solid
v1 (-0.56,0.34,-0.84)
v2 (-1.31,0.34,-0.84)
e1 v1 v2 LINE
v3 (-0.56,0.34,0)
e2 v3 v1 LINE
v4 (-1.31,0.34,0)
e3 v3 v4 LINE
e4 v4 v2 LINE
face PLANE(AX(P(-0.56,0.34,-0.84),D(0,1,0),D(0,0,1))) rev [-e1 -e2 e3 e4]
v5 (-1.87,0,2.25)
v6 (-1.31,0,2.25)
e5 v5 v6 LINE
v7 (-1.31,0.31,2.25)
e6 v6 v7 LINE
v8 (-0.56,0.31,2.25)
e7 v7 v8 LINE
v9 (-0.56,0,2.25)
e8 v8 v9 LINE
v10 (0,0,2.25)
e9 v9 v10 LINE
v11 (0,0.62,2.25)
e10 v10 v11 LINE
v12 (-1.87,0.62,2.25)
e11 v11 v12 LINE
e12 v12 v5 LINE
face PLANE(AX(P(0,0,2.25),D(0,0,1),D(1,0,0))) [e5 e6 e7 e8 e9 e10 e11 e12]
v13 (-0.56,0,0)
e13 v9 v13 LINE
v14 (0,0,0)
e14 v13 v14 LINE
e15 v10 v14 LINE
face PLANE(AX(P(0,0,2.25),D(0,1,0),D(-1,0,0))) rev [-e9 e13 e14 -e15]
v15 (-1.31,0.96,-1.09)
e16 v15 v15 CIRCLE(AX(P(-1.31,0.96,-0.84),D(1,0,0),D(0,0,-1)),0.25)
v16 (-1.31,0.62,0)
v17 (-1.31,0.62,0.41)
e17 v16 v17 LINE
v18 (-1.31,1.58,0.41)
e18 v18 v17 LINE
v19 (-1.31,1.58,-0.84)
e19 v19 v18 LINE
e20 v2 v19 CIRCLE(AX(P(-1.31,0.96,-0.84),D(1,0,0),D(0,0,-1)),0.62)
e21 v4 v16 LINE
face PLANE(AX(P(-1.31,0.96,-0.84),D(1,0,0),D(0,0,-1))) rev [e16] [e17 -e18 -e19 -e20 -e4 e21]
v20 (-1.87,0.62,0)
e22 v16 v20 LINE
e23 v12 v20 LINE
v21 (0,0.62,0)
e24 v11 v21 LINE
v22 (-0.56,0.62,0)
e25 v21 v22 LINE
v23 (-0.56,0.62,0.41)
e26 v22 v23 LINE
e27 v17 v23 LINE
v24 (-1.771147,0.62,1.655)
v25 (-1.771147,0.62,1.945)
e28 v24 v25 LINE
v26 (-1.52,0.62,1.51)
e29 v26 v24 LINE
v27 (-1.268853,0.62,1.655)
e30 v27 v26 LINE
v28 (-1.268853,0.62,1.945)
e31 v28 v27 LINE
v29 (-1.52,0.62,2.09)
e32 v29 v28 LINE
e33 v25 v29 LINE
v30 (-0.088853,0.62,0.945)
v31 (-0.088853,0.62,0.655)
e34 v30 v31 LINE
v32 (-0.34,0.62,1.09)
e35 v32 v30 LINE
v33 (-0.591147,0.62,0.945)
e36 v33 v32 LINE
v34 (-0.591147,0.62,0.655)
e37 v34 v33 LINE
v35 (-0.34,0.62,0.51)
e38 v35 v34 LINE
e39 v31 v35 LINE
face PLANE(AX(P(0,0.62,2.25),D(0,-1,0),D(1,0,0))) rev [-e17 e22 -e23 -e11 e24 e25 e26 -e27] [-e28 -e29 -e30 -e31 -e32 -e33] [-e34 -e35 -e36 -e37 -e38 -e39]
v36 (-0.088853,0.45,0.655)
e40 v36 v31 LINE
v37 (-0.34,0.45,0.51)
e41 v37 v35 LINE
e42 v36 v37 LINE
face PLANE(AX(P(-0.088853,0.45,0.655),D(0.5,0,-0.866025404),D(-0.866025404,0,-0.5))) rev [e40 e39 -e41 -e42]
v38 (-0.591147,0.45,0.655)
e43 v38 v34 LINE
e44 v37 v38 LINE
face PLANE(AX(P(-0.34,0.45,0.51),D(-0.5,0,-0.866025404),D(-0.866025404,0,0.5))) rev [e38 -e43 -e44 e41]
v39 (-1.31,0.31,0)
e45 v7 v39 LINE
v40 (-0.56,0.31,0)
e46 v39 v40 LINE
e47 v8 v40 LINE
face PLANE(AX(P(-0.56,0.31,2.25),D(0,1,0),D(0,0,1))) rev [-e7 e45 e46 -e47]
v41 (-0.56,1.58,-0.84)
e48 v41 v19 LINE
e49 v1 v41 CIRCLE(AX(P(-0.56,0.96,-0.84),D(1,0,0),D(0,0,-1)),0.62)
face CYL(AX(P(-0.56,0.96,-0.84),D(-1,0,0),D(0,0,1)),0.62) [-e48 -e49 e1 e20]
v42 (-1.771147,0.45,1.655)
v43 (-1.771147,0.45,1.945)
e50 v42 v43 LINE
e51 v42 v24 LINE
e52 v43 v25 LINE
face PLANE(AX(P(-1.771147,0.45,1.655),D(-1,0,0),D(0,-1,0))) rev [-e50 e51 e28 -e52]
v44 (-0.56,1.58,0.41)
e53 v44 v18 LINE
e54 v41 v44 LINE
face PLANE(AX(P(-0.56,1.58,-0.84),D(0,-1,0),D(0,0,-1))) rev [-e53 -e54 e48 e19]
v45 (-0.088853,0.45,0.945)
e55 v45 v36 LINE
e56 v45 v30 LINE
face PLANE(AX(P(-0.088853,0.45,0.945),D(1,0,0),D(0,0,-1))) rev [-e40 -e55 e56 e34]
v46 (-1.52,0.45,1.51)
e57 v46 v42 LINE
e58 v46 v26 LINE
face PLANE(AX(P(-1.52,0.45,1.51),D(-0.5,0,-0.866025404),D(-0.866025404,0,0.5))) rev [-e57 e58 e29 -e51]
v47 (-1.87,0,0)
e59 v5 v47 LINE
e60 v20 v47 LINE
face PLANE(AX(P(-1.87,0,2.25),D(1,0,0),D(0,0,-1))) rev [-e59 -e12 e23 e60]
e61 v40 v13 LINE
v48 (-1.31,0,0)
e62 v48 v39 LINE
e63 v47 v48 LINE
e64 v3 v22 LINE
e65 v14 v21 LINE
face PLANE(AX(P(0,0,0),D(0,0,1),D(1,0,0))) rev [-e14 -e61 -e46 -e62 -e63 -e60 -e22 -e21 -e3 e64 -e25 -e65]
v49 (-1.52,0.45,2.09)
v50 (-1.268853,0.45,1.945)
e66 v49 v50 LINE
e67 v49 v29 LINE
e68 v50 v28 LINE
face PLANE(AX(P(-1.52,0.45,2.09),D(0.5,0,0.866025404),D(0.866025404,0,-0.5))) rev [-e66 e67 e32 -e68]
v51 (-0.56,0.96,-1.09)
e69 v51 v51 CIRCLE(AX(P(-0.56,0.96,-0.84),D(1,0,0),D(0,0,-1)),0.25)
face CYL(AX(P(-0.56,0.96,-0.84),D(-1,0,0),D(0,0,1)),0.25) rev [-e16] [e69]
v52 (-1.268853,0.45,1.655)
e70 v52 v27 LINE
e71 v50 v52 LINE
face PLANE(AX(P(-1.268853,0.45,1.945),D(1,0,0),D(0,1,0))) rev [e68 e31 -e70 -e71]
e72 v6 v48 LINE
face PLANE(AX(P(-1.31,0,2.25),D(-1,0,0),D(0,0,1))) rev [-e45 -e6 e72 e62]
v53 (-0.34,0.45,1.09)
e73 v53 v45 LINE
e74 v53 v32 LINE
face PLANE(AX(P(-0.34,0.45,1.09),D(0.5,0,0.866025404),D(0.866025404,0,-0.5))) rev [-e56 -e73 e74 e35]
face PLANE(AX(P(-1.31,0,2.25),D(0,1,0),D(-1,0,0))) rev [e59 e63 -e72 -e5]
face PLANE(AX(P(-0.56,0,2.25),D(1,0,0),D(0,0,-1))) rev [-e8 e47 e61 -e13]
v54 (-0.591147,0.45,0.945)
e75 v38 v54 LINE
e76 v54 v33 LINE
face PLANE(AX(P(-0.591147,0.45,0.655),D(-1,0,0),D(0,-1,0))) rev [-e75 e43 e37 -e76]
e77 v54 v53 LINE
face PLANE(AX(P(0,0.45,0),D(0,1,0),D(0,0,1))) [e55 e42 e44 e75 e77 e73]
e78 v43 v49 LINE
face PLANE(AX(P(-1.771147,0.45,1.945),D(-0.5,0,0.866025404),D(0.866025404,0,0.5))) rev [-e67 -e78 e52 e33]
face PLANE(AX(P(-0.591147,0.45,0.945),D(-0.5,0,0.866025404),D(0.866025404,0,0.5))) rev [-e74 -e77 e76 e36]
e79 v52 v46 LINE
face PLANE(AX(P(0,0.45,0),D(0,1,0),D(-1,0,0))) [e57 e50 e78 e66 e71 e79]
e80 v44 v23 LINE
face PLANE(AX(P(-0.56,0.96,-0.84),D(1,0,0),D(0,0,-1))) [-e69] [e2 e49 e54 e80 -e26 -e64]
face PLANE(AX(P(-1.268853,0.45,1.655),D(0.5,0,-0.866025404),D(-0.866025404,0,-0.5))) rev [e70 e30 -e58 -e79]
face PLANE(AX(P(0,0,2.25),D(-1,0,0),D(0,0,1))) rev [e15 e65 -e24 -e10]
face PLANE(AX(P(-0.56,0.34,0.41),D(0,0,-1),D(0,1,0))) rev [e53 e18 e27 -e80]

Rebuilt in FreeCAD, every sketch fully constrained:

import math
import FreeCAD as App
import Part
import Sketcher
from FreeCAD import Vector
Q = App.Units.Quantity

doc = App.newDocument("Part")
body = doc.addObject("PartDesign::Body", "Body")

# Sketch on XY plane
sketch1 = body.newObject("Sketcher::SketchObject", "Sketch")
sketch1.AttachmentSupport = (doc.getObject("XY_Plane"), [""])
sketch1.MapMode = "FlatFace"
sketch1.addGeometry([
    Part.LineSegment(Vector(-1.87, 0, 0), Vector(-1.31, 0, 0)),  # 0
    Part.LineSegment(Vector(-1.31, 0, 0), Vector(-1.31, 0.31, 0)),  # 1
    Part.LineSegment(Vector(-1.31, 0.31, 0), Vector(-0.56, 0.31, 0)),  # 2
    Part.LineSegment(Vector(-0.56, 0.31, 0), Vector(-0.56, 0, 0)),  # 3
    Part.LineSegment(Vector(-0.56, 0, 0), Vector(0, 0, 0)),  # 4
    Part.LineSegment(Vector(0, 0, 0), Vector(0, 0.62, 0)),  # 5
    Part.LineSegment(Vector(0, 0.62, 0), Vector(-1.87, 0.62, 0)),  # 6
    Part.LineSegment(Vector(-1.87, 0.62, 0), Vector(-1.87, 0, 0)),  # 7
], False)
sketch1.addConstraint([
    Sketcher.Constraint("Coincident", 0, 2, 1, 1),
    Sketcher.Constraint("Coincident", 1, 2, 2, 1),
    Sketcher.Constraint("Coincident", 2, 2, 3, 1),
    Sketcher.Constraint("Coincident", 3, 2, 4, 1),
    Sketcher.Constraint("Coincident", 4, 2, 5, 1),
    Sketcher.Constraint("Coincident", 5, 2, 6, 1),
    Sketcher.Constraint("Coincident", 6, 2, 7, 1),
    Sketcher.Constraint("Coincident", 7, 2, 0, 1),
    Sketcher.Constraint("Horizontal", 0),
    Sketcher.Constraint("Vertical", 1),
    Sketcher.Constraint("Horizontal", 2),
    Sketcher.Constraint("Vertical", 3),
    Sketcher.Constraint("Horizontal", 4),
    Sketcher.Constraint("Vertical", 5),
    Sketcher.Constraint("Horizontal", 6),
    Sketcher.Constraint("Vertical", 7),
    Sketcher.Constraint("Coincident", 4, 2, -1, 1),
    Sketcher.Constraint("PointOnObject", 0, 2, -1),
    Sketcher.Constraint("Equal", 0, 4),
    Sketcher.Constraint("DistanceX", 0, 1, 0, 2, 0.56),
    Sketcher.Constraint("DistanceX", 2, 1, 2, 2, 0.75),
    Sketcher.Constraint("DistanceY", 1, 1, 1, 2, 0.31),
    Sketcher.Constraint("DistanceY", 5, 1, 5, 2, 0.62),
])
pad1 = body.newObject("PartDesign::Pad", "Pad")
pad1.Profile = sketch1
pad1.Length = 2.25

# Sketch on YZ plane
sketch2 = body.newObject("Sketcher::SketchObject", "Sketch001")
sketch2.AttachmentSupport = (doc.getObject("YZ_Plane"), [""])
sketch2.MapMode = "FlatFace"
sketch2.AttachmentOffset = App.Placement(Vector(0, 0, -0.935), App.Rotation())
sketch2.addGeometry([
    Part.LineSegment(Vector(1.58, -0.84, 0), Vector(1.58, 0.41, 0)),  # 0
    Part.LineSegment(Vector(1.58, 0.41, 0), Vector(0.34, 0.41, 0)),  # 1
    Part.LineSegment(Vector(0.34, 0.41, 0), Vector(0.34, -0.84, 0)),  # 2
    Part.ArcOfCircle(Part.Circle(Vector(0.96, -0.84, 0), Vector(0, 0, 1), 0.62), math.radians(180), math.radians(360)),  # 3
    Part.Circle(Vector(0.96, -0.84, 0), Vector(0, 0, 1), 0.25),  # 4
], False)
sketch2.addConstraint([
    Sketcher.Constraint("Coincident", 0, 2, 1, 1),
    Sketcher.Constraint("Coincident", 1, 2, 2, 1),
    Sketcher.Constraint("Tangent", 2, 2, 3, 1),
    Sketcher.Constraint("Tangent", 3, 2, 0, 1),
    Sketcher.Constraint("Vertical", 0),
    Sketcher.Constraint("Horizontal", 1),
    Sketcher.Constraint("Vertical", 2),
    Sketcher.Constraint("Coincident", 4, 3, 3, 3),
    Sketcher.Constraint("Diameter", 4, 0.5),
    Sketcher.Constraint("Radius", 3, 0.62),
    Sketcher.Constraint("DistanceY", 0, 1, 0, 2, 1.25),
    Sketcher.Constraint("DistanceX", -1, 1, 3, 3, 0.96),
    Sketcher.Constraint("DistanceY", 3, 3, -1, 1, 0.84),
])
pad2 = body.newObject("PartDesign::Pad", "Pad001")
pad2.Profile = sketch2
pad2.Length = 0.75
pad2.Midplane = True

# Sketch on XZ plane
sketch3 = body.newObject("Sketcher::SketchObject", "Sketch002")
sketch3.AttachmentSupport = (doc.getObject("XZ_Plane"), [""])
sketch3.MapMode = "FlatFace"
sketch3.AttachmentOffset = App.Placement(Vector(0, 0, -0.62), App.Rotation())
sketch3.addGeometry([
    Part.LineSegment(Vector(-0.09, 0.94, 0), Vector(-0.09, 0.66, 0)),  # 0
    Part.LineSegment(Vector(-0.09, 0.66, 0), Vector(-0.34, 0.51, 0)),  # 1
    Part.LineSegment(Vector(-0.34, 0.51, 0), Vector(-0.59, 0.66, 0)),  # 2
    Part.LineSegment(Vector(-0.59, 0.66, 0), Vector(-0.59, 0.94, 0)),  # 3
    Part.LineSegment(Vector(-0.59, 0.94, 0), Vector(-0.34, 1.09, 0)),  # 4
    Part.LineSegment(Vector(-0.34, 1.09, 0), Vector(-0.09, 0.94, 0)),  # 5
    Part.LineSegment(Vector(-1.27, 1.95, 0), Vector(-1.27, 1.66, 0)),  # 6
    Part.LineSegment(Vector(-1.27, 1.66, 0), Vector(-1.52, 1.51, 0)),  # 7
    Part.LineSegment(Vector(-1.52, 1.51, 0), Vector(-1.77, 1.66, 0)),  # 8
    Part.LineSegment(Vector(-1.77, 1.66, 0), Vector(-1.77, 1.95, 0)),  # 9
    Part.LineSegment(Vector(-1.77, 1.95, 0), Vector(-1.52, 2.09, 0)),  # 10
    Part.LineSegment(Vector(-1.52, 2.09, 0), Vector(-1.27, 1.95, 0)),  # 11
], False)
sketch3.addConstraint([
    Sketcher.Constraint("Coincident", 0, 2, 1, 1),
    Sketcher.Constraint("Coincident", 1, 2, 2, 1),
    Sketcher.Constraint("Coincident", 2, 2, 3, 1),
    Sketcher.Constraint("Coincident", 3, 2, 4, 1),
    Sketcher.Constraint("Coincident", 4, 2, 5, 1),
    Sketcher.Constraint("Coincident", 5, 2, 0, 1),
    Sketcher.Constraint("Coincident", 6, 2, 7, 1),
    Sketcher.Constraint("Coincident", 7, 2, 8, 1),
    Sketcher.Constraint("Coincident", 8, 2, 9, 1),
    Sketcher.Constraint("Coincident", 9, 2, 10, 1),
    Sketcher.Constraint("Coincident", 10, 2, 11, 1),
    Sketcher.Constraint("Coincident", 11, 2, 6, 1),
    Sketcher.Constraint("Vertical", 0),
    Sketcher.Constraint("Vertical", 3),
    Sketcher.Constraint("Vertical", 6),
    Sketcher.Constraint("Vertical", 9),
    Sketcher.Constraint("Parallel", 1, 4),
    Sketcher.Constraint("Parallel", 2, 5),
    Sketcher.Constraint("Parallel", 4, 7),
    Sketcher.Constraint("Parallel", 5, 8),
    Sketcher.Constraint("Parallel", 7, 10),
    Sketcher.Constraint("Parallel", 8, 11),
    Sketcher.Constraint("Horizontal", 0, 2, 2, 2),
    Sketcher.Constraint("Horizontal", 3, 2, 5, 2),
    Sketcher.Constraint("Horizontal", 6, 2, 8, 2),
    Sketcher.Constraint("Horizontal", 9, 2, 11, 2),
    Sketcher.Constraint("Vertical", 1, 2, 4, 2),
    Sketcher.Constraint("Equal", 3, 6),
    Sketcher.Constraint("Equal", 5, 7),
    Sketcher.Constraint("Angle", 1, Q("-150 deg")),
    Sketcher.Constraint("DistanceY", 2, 2, 6, 2, 1.0),
    Sketcher.Constraint("DistanceY", 0, 2, 0, 1, 0.29),
    Sketcher.Constraint("Distance", 1, 0.29),
    Sketcher.Constraint("DistanceX", 1, 2, -1, 1, 0.34),
    Sketcher.Constraint("DistanceY", -1, 1, 1, 2, 0.51),
    Sketcher.Constraint("DistanceX", 7, 2, -1, 1, 1.52),
])
pocket1 = body.newObject("PartDesign::Pocket", "Pocket")
pocket1.Profile = sketch3
pocket1.Length = 0.17
pocket1.Reversed = True

doc.recompute()
